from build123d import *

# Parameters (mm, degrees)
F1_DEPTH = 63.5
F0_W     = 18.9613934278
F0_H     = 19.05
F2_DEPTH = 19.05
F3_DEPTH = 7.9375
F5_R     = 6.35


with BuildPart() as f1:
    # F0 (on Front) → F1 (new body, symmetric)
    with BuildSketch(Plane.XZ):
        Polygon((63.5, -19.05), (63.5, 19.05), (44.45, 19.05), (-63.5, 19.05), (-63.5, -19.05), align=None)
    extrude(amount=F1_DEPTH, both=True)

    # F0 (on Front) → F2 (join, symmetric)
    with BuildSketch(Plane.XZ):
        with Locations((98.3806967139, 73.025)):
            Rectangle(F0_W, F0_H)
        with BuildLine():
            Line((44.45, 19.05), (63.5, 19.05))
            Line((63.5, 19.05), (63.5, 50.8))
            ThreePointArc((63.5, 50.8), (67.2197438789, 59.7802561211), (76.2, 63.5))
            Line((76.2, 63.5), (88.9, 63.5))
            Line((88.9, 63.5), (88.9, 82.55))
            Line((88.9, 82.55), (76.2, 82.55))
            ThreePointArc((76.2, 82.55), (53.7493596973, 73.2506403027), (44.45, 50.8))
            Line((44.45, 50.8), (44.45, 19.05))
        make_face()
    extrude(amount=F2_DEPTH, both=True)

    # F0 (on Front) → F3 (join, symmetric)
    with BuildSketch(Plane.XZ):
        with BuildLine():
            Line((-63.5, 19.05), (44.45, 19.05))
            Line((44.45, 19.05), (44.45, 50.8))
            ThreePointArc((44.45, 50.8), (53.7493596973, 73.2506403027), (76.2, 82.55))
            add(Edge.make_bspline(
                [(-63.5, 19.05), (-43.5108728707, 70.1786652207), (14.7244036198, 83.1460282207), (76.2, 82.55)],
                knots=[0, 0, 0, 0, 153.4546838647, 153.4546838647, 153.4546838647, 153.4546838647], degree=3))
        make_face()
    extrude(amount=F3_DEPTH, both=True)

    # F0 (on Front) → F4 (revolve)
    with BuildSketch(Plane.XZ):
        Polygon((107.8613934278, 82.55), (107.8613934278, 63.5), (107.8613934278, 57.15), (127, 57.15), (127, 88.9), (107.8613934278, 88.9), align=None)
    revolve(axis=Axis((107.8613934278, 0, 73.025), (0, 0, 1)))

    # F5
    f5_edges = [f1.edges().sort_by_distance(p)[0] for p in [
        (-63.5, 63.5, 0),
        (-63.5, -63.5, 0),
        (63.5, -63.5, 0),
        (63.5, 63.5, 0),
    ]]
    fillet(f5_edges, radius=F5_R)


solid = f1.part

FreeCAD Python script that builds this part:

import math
import FreeCAD as App
import Part
import Sketcher
Q = App.Units.Quantity


def edges_at(feature, points):
    """Names of the edges that pass closest to the given points."""
    edges = feature.Shape.Edges
    near = lambda p: min(range(len(edges)), key=lambda i: edges[i].distToShape(Part.Vertex(*p))[0])
    return sorted({f"Edge{near(p) + 1}" for p in points})


def add_polygon(sketch, points):
    """Adds a closed chain of lines whose ends are joined by coincident constraints."""
    first, n = sketch.GeometryCount, len(points)
    for a, b in zip(points, points[1:] + points[:1]):
        sketch.addGeometry(Part.LineSegment(App.Vector(*a, 0), App.Vector(*b, 0)), False)
    for i in range(n):
        sketch.addConstraint(Sketcher.Constraint("Coincident", first + i, 2, first + (i + 1) % n, 1))

doc = App.newDocument("Part")
body = doc.addObject("PartDesign::Body", "Body")

sketch1 = body.newObject("Sketcher::SketchObject", "Sketch")
sketch1.AttachmentSupport = (doc.getObject("XZ_Plane"), [""])
sketch1.MapMode = "FlatFace"
add_polygon(sketch1, [(64, -19), (64, 19), (-64, 19), (-64, -19)])
sketch1.addConstraint(Sketcher.Constraint("Vertical", 0))
sketch1.addConstraint(Sketcher.Constraint("Horizontal", 1))
sketch1.addConstraint(Sketcher.Constraint("Vertical", 2))
sketch1.addConstraint(Sketcher.Constraint("Horizontal", 3))
sketch1.addConstraint(Sketcher.Constraint("Symmetric", 0, 2, 2, 2, -1, 1))
sketch1.addConstraint(Sketcher.Constraint("DistanceX", 1, 2, 1, 1, Q("5 in")))
sketch1.addConstraint(Sketcher.Constraint("DistanceY", 0, 1, 0, 2, Q("1.5 in")))
pad1 = body.newObject("PartDesign::Pad", "Pad")
pad1.Profile = sketch1
pad1.Length = Q("5 in")
pad1.Midplane = True

sketch2 = body.newObject("Sketcher::SketchObject", "Sketch001")
sketch2.AttachmentSupport = (doc.getObject("XZ_Plane"), [""])
sketch2.MapMode = "FlatFace"
sketch2.addGeometry(Part.LineSegment(App.Vector(108, 64, 0), App.Vector(108, 83, 0)), False)
sketch2.addGeometry(Part.LineSegment(App.Vector(108, 83, 0), App.Vector(76, 83, 0)), False)
sketch2.addGeometry(Part.ArcOfCircle(Part.Circle(App.Vector(76, 51, 0), App.Vector(0, 0, 1), 32), math.radians(90), math.radians(180)), False)
sketch2.addGeometry(Part.LineSegment(App.Vector(44, 51, 0), App.Vector(44, 19, 0)), False)
sketch2.addGeometry(Part.LineSegment(App.Vector(44, 19, 0), App.Vector(64, 19, 0)), False)
sketch2.addGeometry(Part.LineSegment(App.Vector(64, 19, 0), App.Vector(64, 51, 0)), False)
sketch2.addGeometry(Part.ArcOfCircle(Part.Circle(App.Vector(76, 51, 0), App.Vector(0, 0, 1), 13), math.radians(90), math.radians(180)), False)
sketch2.addGeometry(Part.LineSegment(App.Vector(76, 64, 0), App.Vector(108, 64, 0)), False)
sketch2.addConstraint(Sketcher.Constraint("Coincident", 0, 2, 1, 1))
sketch2.addConstraint(Sketcher.Constraint("Tangent", 1, 2, 2, 1))
sketch2.addConstraint(Sketcher.Constraint("Tangent", 2, 2, 3, 1))
sketch2.addConstraint(Sketcher.Constraint("Coincident", 3, 2, 4, 1))
sketch2.addConstraint(Sketcher.Constraint("Coincident", 4, 2, 5, 1))
sketch2.addConstraint(Sketcher.Constraint("Tangent", 5, 2, 6, 2))
sketch2.addConstraint(Sketcher.Constraint("Tangent", 6, 1, 7, 1))
sketch2.addConstraint(Sketcher.Constraint("Coincident", 7, 2, 0, 1))
sketch2.addConstraint(Sketcher.Constraint("Vertical", 0))
sketch2.addConstraint(Sketcher.Constraint("Horizontal", 1))
sketch2.addConstraint(Sketcher.Constraint("Vertical", 3))
sketch2.addConstraint(Sketcher.Constraint("Horizontal", 4))
sketch2.addConstraint(Sketcher.Constraint("Vertical", 5))
sketch2.addConstraint(Sketcher.Constraint("Horizontal", 7))
sketch2.addConstraint(Sketcher.Constraint("Coincident", 6, 3, 2, 3))
sketch2.addConstraint(Sketcher.Constraint("Radius", 6, Q("0.5 in")))
sketch2.addConstraint(Sketcher.Constraint("Radius", 2, Q("1.25 in")))
sketch2.addConstraint(Sketcher.Constraint("DistanceX", -1, 1, 2, 3, Q("3 in")))
sketch2.addConstraint(Sketcher.Constraint("DistanceY", -1, 1, 2, 3, Q("2 in")))
sketch2.addConstraint(Sketcher.Constraint("DistanceY", 3, 2, 3, 1, Q("1.25 in")))
sketch2.addConstraint(Sketcher.Constraint("DistanceX", 1, 2, 1, 1, Q("31.661393 mm")))
pad2 = body.newObject("PartDesign::Pad", "Pad001")
pad2.Profile = sketch2
pad2.Length = Q("1.5 in")
pad2.Midplane = True

sketch3 = body.newObject("Sketcher::SketchObject", "Sketch002")
sketch3.AttachmentSupport = (doc.getObject("XZ_Plane"), [""])
sketch3.MapMode = "FlatFace"
sketch3.addGeometry(Part.LineSegment(App.Vector(-63.5, 19.05, 0), App.Vector(44.45, 19.05, 0)), False)
sketch3.addGeometry(Part.LineSegment(App.Vector(44.45, 19.05, 0), App.Vector(44.45, 50.8, 0)), False)
sketch3.addGeometry(Part.ArcOfCircle(Part.Circle(App.Vector(76.2, 50.8, 0), App.Vector(0, 0, 1), 31.75), math.radians(90), math.radians(180)), False)
sketch3.addGeometry(Part.BSplineCurve([App.Vector(-63.5, 19.05, 0), App.Vector(-43.510873, 70.178665, 0), App.Vector(14.724404, 83.146028, 0), App.Vector(76.2, 82.55, 0)], [4, 4], [0, 153.454683865], False, 3, [1, 1, 1, 1], False), False)
sketch3.addConstraint(Sketcher.Constraint("Block", 3))
sketch3.addConstraint(Sketcher.Constraint("Coincident", 0, 2, 1, 1))
sketch3.addConstraint(Sketcher.Constraint("Tangent", 1, 2, 2, 2))
sketch3.addConstraint(Sketcher.Constraint("Coincident", 2, 1, 3, 2))
sketch3.addConstraint(Sketcher.Constraint("Coincident", 3, 1, 0, 1))
sketch3.addConstraint(Sketcher.Constraint("Horizontal", 0))
sketch3.addConstraint(Sketcher.Constraint("Vertical", 1))
sketch3.addConstraint(Sketcher.Constraint("Radius", 2, Q("1.25 in")))
sketch3.addConstraint(Sketcher.Constraint("DistanceX", -1, 1, 2, 3, Q("3 in")))
pad3 = body.newObject("PartDesign::Pad", "Pad002")
pad3.Profile = sketch3
pad3.Length = Q("0.625 in")
pad3.Midplane = True

sketch4 = body.newObject("Sketcher::SketchObject", "Sketch003")
sketch4.AttachmentSupport = (doc.getObject("XZ_Plane"), [""])
sketch4.MapMode = "FlatFace"
add_polygon(sketch4, [(108, 57), (127, 57), (127, 89), (108, 89)])
sketch4.addGeometry(Part.LineSegment(App.Vector(108, 57, 0), App.Vector(108, 89, 0)), True)
sketch4.addConstraint(Sketcher.Constraint("Horizontal", 0))
sketch4.addConstraint(Sketcher.Constraint("Vertical", 1))
sketch4.addConstraint(Sketcher.Constraint("Horizontal", 2))
sketch4.addConstraint(Sketcher.Constraint("Vertical", 3))
sketch4.addConstraint(Sketcher.Constraint("Vertical", 4))
sketch4.addConstraint(Sketcher.Constraint("Coincident", 4, 1, 3, 2))
sketch4.addConstraint(Sketcher.Constraint("Horizontal", 1, 2, 4, 2))
sketch4.addConstraint(Sketcher.Constraint("DistanceX", -1, 1, 0, 2, Q("5 in")))
sketch4.addConstraint(Sketcher.Constraint("DistanceY", 1, 1, 1, 2, Q("1.25 in")))
sketch4.addConstraint(Sketcher.Constraint("DistanceY", -1, 1, 1, 2, Q("3.5 in")))
sketch4.addConstraint(Sketcher.Constraint("DistanceX", 0, 1, 0, 2, Q("19.138607 mm")))
revolution = body.newObject("PartDesign::Revolution", "Revolution")
revolution.Profile = sketch4
revolution.ReferenceAxis = (sketch4, ["Axis0"])
revolution.Angle = 360
doc.recompute()

fillet = body.newObject("PartDesign::Fillet", "Fillet")
fillet.Base = (revolution, edges_at(revolution, [
    (-63.5, 63.5, 0),
    (-63.5, -63.5, 0),
    (63.5, -63.5, 0),
    (63.5, 63.5, 0),
]))
fillet.Radius = Q("0.25 in")

doc.recompute()
